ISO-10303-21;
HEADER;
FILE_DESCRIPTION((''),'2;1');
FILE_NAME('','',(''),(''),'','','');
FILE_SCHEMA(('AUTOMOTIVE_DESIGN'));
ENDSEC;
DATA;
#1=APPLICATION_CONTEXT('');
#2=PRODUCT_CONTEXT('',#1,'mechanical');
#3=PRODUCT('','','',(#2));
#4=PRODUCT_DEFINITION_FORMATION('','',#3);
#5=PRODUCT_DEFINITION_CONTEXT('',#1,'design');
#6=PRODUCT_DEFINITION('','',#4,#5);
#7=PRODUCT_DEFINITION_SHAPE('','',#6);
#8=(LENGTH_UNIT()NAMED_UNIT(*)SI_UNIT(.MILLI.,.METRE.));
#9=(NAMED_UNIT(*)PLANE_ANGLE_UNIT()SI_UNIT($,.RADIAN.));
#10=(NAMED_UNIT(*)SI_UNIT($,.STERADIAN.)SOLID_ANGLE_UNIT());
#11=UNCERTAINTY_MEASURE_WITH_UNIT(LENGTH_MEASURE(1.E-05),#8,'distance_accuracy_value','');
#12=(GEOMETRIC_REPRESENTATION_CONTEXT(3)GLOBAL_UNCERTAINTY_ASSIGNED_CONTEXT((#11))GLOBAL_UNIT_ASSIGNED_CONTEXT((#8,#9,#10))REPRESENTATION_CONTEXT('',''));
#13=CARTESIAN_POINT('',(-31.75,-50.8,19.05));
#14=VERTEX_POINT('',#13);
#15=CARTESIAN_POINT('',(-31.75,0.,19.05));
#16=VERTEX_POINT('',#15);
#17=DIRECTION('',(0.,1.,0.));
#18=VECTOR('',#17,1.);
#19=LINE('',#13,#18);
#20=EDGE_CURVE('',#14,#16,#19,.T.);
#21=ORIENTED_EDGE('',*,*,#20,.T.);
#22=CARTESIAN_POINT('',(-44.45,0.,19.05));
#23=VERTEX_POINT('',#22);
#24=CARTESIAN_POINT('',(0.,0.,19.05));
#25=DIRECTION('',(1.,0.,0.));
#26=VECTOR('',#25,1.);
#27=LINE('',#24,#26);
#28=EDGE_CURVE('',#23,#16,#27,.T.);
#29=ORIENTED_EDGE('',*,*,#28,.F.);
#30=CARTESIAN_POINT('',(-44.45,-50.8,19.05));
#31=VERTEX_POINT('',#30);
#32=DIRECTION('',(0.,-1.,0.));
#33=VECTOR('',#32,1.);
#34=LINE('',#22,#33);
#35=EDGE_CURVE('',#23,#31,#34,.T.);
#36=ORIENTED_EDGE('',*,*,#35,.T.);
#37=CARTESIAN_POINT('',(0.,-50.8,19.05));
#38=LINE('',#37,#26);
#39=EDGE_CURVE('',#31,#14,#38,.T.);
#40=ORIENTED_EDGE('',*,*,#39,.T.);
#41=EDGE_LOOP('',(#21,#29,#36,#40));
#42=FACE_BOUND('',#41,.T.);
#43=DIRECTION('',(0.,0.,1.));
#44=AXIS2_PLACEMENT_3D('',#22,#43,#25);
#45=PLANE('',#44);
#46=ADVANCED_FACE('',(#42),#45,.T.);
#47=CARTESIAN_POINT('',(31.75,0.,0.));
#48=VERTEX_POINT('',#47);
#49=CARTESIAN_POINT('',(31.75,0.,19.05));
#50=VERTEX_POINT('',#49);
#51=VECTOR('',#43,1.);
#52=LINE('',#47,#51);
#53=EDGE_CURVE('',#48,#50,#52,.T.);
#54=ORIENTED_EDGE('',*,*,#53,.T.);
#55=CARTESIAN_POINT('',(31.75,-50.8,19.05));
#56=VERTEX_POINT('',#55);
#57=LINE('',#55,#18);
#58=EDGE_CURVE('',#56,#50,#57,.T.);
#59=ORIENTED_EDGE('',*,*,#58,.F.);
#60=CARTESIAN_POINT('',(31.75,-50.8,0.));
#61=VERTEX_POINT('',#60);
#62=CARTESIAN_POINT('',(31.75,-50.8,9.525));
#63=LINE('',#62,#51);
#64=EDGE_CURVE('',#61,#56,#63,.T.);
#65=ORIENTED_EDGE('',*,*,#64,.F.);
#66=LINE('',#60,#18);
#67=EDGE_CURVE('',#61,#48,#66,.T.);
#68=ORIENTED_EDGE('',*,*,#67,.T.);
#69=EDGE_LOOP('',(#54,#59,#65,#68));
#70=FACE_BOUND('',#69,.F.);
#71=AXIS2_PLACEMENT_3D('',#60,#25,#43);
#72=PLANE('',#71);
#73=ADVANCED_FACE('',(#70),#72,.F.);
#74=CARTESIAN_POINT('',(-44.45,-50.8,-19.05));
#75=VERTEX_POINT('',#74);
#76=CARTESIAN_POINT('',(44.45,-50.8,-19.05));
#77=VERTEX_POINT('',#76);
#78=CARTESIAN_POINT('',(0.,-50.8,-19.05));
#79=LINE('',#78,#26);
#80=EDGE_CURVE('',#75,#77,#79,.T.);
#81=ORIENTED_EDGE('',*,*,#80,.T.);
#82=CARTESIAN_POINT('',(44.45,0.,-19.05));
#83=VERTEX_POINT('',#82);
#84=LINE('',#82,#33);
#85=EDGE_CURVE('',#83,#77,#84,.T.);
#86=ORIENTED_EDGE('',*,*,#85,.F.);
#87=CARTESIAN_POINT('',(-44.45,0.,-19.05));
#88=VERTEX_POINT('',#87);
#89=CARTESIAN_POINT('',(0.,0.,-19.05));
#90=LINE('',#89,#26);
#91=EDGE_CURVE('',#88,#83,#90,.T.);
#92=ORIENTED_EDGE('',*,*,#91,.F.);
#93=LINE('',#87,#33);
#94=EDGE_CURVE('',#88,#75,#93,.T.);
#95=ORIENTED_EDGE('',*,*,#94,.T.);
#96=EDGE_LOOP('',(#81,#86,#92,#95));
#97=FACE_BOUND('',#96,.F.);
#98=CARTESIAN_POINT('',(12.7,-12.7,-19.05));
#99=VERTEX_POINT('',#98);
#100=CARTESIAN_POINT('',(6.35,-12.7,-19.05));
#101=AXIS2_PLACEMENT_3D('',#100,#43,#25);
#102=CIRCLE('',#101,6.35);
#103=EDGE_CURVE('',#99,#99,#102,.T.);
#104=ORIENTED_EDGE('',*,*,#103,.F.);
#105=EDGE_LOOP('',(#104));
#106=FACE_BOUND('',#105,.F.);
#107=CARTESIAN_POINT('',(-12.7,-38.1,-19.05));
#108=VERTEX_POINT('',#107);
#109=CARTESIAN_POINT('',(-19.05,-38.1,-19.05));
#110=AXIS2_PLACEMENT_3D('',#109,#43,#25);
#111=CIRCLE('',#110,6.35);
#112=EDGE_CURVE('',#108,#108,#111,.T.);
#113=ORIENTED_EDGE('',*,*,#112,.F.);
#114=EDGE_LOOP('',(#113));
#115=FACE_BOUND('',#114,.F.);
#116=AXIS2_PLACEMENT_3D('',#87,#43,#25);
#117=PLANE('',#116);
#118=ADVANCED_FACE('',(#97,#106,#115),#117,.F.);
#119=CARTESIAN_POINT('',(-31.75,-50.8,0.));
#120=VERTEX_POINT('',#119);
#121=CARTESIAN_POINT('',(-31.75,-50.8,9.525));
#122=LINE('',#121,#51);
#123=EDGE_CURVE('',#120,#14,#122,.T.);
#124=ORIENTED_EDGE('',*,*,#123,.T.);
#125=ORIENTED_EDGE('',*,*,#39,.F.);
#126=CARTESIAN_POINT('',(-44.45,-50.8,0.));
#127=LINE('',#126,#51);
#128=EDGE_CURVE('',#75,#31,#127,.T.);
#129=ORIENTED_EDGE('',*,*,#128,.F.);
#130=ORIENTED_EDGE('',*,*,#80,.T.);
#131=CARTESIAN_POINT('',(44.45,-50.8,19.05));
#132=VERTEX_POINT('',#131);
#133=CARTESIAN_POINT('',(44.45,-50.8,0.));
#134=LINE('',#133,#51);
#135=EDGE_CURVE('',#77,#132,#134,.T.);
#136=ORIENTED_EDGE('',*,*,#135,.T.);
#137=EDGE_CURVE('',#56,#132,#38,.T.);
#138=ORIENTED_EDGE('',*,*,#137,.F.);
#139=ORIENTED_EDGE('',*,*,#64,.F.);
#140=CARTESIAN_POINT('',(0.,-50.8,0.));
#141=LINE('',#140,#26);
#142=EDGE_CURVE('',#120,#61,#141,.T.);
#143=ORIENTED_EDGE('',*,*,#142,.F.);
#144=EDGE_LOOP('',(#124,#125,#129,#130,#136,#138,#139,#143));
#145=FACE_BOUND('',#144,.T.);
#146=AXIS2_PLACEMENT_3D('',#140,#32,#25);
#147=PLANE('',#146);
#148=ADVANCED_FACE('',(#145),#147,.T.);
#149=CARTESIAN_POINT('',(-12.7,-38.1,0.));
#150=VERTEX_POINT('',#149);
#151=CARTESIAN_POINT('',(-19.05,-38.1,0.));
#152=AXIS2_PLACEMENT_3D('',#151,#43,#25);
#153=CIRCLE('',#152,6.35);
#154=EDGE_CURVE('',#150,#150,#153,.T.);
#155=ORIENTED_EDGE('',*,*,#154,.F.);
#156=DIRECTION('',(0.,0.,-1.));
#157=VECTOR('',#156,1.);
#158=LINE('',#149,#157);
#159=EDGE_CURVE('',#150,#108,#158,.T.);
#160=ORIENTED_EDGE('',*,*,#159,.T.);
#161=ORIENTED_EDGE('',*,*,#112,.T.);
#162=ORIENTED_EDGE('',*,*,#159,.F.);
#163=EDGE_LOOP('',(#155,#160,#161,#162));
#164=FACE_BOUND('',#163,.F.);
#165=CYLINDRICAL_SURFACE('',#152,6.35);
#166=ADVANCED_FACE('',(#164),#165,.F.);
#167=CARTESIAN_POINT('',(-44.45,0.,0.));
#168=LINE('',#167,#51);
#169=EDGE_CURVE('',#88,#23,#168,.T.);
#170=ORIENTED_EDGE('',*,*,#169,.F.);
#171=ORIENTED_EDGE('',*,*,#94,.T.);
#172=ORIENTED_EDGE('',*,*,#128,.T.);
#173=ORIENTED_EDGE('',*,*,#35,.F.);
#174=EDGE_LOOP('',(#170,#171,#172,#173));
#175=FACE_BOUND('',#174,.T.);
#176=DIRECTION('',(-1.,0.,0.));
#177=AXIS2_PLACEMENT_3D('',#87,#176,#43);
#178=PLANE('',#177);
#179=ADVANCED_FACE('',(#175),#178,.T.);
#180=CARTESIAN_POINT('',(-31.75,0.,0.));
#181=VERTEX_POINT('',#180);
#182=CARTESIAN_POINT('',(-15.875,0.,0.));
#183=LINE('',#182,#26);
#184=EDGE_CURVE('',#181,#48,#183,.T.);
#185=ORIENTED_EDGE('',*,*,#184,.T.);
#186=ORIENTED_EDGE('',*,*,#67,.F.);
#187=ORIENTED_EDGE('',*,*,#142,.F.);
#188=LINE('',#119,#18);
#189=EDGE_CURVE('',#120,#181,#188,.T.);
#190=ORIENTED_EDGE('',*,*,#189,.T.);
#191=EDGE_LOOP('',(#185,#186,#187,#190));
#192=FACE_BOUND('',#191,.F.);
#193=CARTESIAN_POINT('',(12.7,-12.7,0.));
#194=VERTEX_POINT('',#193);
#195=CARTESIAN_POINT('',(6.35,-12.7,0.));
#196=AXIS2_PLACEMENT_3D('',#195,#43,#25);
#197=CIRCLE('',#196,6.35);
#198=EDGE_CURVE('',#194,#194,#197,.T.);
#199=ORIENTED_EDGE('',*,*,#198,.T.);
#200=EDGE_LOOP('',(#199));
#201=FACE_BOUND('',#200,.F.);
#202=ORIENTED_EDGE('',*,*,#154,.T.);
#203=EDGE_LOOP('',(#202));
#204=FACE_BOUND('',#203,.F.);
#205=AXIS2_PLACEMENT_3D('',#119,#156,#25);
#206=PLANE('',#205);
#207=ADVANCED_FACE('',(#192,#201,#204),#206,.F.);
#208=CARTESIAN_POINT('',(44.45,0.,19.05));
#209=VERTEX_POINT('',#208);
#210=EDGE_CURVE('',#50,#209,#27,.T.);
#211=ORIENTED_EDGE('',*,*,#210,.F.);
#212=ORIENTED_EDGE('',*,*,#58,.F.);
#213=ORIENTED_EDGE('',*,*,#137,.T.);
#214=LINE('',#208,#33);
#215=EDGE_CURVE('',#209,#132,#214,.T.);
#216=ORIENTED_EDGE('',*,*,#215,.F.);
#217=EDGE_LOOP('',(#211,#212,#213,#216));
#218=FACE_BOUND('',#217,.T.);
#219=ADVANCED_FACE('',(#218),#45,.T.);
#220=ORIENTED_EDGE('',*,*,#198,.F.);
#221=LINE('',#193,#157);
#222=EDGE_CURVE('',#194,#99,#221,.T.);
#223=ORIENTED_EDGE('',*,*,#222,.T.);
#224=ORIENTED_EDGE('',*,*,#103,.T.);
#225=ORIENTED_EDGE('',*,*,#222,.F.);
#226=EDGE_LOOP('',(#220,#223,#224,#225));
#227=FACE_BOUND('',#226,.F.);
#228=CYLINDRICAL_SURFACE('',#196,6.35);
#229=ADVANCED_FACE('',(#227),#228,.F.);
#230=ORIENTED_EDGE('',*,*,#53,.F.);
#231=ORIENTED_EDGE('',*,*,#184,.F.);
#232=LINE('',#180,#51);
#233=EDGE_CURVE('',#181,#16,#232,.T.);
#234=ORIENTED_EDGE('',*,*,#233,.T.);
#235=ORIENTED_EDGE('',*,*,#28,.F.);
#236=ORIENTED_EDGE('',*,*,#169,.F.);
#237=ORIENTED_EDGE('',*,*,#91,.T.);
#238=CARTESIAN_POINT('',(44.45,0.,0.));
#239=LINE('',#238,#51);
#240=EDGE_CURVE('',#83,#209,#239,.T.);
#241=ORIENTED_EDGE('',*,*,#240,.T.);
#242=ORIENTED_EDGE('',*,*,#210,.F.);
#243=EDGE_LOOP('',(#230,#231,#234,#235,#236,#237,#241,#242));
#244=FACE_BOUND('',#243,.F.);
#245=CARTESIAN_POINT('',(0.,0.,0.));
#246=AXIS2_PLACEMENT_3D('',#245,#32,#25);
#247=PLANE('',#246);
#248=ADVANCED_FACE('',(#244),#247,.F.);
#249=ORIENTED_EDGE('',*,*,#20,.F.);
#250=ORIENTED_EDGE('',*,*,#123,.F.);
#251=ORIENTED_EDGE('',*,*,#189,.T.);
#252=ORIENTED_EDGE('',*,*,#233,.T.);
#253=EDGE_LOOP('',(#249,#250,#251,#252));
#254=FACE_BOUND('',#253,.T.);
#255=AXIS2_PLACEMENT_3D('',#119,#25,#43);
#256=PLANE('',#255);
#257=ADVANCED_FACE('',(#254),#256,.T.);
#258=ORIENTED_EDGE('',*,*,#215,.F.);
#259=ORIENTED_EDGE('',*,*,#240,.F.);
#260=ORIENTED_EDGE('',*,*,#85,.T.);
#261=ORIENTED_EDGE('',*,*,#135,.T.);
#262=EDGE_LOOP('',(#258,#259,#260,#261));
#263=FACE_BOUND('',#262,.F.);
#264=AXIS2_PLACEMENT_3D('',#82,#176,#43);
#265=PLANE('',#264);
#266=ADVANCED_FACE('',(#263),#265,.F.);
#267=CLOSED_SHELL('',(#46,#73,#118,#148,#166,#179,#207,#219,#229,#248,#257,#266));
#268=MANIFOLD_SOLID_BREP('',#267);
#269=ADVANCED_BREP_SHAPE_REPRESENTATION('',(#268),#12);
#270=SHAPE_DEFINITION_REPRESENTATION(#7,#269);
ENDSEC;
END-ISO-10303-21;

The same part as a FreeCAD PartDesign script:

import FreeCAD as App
import Part
import Sketcher

V = App.Vector
Q = App.Units.Quantity


def add_polygon(sketch, points):
    """Adds a closed chain of lines whose ends are joined by coincident constraints."""
    first, n = sketch.GeometryCount, len(points)
    for a, b in zip(points, points[1:] + points[:1]):
        sketch.addGeometry(Part.LineSegment(App.Vector(*a, 0), App.Vector(*b, 0)), False)
    for i in range(n):
        sketch.addConstraint(Sketcher.Constraint("Coincident", first + i, 2, first + (i + 1) % n, 1))

doc = App.newDocument("Part")
body = doc.addObject("PartDesign::Body", "Body")

# Sketch on XZ plane
sketch1 = body.newObject("Sketcher::SketchObject", "Sketch")
sketch1.AttachmentSupport = (doc.getObject("XZ_Plane"), [""])
sketch1.MapMode = "FlatFace"
add_polygon(sketch1, [(-44.45, 19.05), (-44.45, -19.05), (44.45, -19.05), (44.45, 19.05)])  # lines 0-3
sketch1.addConstraint(Sketcher.Constraint("Vertical", 0))
sketch1.addConstraint(Sketcher.Constraint("Horizontal", 1))
sketch1.addConstraint(Sketcher.Constraint("Vertical", 2))
sketch1.addConstraint(Sketcher.Constraint("Horizontal", 3))
sketch1.addConstraint(Sketcher.Constraint("Symmetric", 0, 2, 2, 2, -1, 1))
sketch1.addConstraint(Sketcher.Constraint("DistanceX", 1, 1, 1, 2, Q("3.5 in")))
sketch1.addConstraint(Sketcher.Constraint("DistanceY", 0, 2, 0, 1, Q("1.5 in")))
pad1 = body.newObject("PartDesign::Pad", "Pad")
pad1.Profile = sketch1
pad1.Length = Q("2 in")

# Sketch on XZ plane
sketch2 = body.newObject("Sketcher::SketchObject", "Sketch001")
sketch2.AttachmentSupport = (doc.getObject("XZ_Plane"), [""])
sketch2.MapMode = "FlatFace"
sketch2.AttachmentOffset = App.Placement(V(0, 0, 2 * 25.4), App.Rotation())
add_polygon(sketch2, [(-31.75, 19.05), (-31.75, 0), (31.75, 0), (31.75, 19.05)])  # lines 0-3
sketch2.addConstraint(Sketcher.Constraint("Vertical", 0))
sketch2.addConstraint(Sketcher.Constraint("Horizontal", 1))
sketch2.addConstraint(Sketcher.Constraint("Vertical", 2))
sketch2.addConstraint(Sketcher.Constraint("Horizontal", 3))
sketch2.addConstraint(Sketcher.Constraint("Symmetric", 0, 2, 1, 2, -1, 1))
sketch2.addConstraint(Sketcher.Constraint("DistanceX", 1, 1, 1, 2, Q("2.5 in")))
sketch2.addConstraint(Sketcher.Constraint("DistanceY", 0, 2, 0, 1, Q("0.75 in")))
pocket1 = body.newObject("PartDesign::Pocket", "Pocket")
pocket1.Profile = sketch2
pocket1.Type = "ThroughAll"

# Sketch on XY plane
sketch3 = body.newObject("Sketcher::SketchObject", "Sketch002")
sketch3.AttachmentSupport = (doc.getObject("XY_Plane"), [""])
sketch3.MapMode = "FlatFace"
sketch3.addGeometry(Part.Circle(V(-19.05, -38.1, 0), V(0, 0, 1), 6.35), False)
sketch3.addConstraint(Sketcher.Constraint("Diameter", 0, Q("0.5 in")))
sketch3.addConstraint(Sketcher.Constraint("DistanceY", 0, 3, -1, 1, Q("1.5 in")))
sketch3.addConstraint(Sketcher.Constraint("DistanceX", 0, 3, -1, 1, Q("0.75 in")))
pocket2 = body.newObject("PartDesign::Pocket", "Pocket001")
pocket2.Profile = sketch3
pocket2.Type = "ThroughAll"

# Sketch on XY plane
sketch4 = body.newObject("Sketcher::SketchObject", "Sketch003")
sketch4.AttachmentSupport = (doc.getObject("XY_Plane"), [""])
sketch4.MapMode = "FlatFace"
sketch4.addGeometry(Part.Circle(V(6.35, -12.7, 0), V(0, 0, 1), 6.35), False)
sketch4.addConstraint(Sketcher.Constraint("Diameter", 0, Q("0.5 in")))
sketch4.addConstraint(Sketcher.Constraint("DistanceY", 0, 3, -1, 1, Q("0.5 in")))
sketch4.addConstraint(Sketcher.Constraint("DistanceX", -1, 1, 0, 3, Q("0.25 in")))
pocket3 = body.newObject("PartDesign::Pocket", "Pocket002")
pocket3.Profile = sketch4
pocket3.Type = "ThroughAll"

doc.recompute()
